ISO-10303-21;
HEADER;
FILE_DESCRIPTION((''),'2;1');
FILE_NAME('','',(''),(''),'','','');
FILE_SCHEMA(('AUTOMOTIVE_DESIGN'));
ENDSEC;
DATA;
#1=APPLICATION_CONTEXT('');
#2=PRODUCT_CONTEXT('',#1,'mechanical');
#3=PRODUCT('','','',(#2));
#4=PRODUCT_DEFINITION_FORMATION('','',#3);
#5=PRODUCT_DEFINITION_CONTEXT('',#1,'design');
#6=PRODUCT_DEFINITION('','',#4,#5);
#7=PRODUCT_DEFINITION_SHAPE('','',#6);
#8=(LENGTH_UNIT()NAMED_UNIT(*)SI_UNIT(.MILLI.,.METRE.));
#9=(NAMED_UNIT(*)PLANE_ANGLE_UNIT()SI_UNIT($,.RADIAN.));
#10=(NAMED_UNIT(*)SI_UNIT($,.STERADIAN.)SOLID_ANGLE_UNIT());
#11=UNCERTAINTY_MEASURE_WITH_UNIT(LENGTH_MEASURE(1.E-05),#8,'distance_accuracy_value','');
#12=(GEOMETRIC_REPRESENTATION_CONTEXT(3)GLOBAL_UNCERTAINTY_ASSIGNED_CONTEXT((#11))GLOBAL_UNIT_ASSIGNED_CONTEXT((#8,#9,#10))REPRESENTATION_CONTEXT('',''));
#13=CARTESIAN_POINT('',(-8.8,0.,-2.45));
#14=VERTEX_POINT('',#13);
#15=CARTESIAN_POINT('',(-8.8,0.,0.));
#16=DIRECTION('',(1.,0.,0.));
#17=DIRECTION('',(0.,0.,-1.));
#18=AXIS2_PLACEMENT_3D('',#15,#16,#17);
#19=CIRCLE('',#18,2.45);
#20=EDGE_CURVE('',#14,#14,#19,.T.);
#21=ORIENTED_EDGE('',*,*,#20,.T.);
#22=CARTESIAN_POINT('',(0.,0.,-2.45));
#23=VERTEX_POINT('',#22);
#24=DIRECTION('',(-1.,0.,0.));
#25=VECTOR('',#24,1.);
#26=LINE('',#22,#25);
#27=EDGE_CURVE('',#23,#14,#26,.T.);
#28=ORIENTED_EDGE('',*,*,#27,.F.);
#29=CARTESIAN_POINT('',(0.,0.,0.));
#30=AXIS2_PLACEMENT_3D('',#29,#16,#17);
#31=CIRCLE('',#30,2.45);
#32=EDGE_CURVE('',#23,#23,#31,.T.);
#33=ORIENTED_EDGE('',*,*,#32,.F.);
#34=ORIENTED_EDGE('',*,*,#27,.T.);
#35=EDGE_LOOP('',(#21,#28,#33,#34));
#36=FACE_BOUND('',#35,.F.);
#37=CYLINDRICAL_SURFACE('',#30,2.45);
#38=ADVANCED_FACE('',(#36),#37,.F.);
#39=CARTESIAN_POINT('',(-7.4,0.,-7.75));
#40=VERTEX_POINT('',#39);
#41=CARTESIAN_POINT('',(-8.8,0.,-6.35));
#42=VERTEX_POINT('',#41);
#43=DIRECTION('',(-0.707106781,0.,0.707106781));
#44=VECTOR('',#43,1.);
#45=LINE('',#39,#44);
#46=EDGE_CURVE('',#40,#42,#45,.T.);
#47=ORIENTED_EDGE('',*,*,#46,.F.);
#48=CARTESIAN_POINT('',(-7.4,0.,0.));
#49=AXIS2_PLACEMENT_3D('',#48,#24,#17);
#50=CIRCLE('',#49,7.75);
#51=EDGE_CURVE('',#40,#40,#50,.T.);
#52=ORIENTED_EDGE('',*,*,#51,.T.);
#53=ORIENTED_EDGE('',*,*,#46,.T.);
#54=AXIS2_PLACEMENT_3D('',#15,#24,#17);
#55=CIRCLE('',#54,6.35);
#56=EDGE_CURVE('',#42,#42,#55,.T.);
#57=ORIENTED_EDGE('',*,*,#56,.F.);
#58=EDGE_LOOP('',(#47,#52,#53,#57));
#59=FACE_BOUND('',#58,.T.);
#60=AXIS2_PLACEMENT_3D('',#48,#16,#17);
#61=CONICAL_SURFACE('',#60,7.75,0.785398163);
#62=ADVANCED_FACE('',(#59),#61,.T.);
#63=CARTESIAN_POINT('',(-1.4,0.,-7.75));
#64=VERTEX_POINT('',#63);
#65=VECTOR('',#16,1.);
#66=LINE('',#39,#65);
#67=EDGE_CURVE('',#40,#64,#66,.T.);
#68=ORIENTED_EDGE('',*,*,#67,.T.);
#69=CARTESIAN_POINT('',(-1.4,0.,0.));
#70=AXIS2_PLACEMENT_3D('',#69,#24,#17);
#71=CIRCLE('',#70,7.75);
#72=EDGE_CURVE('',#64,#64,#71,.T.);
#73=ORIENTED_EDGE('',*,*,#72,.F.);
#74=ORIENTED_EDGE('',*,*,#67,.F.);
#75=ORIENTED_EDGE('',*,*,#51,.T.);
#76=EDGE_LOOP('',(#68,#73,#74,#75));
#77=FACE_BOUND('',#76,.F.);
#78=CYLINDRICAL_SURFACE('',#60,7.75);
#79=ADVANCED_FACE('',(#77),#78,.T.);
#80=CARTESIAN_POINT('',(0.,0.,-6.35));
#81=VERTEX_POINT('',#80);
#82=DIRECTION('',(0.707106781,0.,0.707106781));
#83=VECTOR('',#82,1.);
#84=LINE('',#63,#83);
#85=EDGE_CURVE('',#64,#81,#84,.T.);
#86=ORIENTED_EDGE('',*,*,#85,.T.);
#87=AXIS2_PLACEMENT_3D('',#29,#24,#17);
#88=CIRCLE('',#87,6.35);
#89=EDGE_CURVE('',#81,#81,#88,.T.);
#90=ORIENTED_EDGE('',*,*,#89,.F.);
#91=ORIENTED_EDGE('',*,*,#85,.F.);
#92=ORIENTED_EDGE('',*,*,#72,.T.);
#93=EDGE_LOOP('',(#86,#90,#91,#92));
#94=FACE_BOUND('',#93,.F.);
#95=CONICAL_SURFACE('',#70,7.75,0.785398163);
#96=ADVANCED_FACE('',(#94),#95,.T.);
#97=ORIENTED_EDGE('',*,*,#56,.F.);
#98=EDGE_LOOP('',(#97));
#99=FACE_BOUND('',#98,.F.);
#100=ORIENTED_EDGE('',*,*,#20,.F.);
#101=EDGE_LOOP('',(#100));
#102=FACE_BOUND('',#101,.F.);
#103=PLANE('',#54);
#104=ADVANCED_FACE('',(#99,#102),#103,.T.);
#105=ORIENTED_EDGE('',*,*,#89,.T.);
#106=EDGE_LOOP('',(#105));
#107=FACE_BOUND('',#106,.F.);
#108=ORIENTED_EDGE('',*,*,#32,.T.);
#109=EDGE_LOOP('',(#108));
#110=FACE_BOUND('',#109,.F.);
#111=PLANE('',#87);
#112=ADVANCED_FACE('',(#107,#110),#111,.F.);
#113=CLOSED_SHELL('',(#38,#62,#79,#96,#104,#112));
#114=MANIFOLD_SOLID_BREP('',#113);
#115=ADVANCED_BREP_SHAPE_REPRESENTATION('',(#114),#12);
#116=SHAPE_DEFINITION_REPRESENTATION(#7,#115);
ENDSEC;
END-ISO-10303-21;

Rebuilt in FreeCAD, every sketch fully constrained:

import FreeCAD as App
import Part
import Sketcher

V = App.Vector


def add_polygon(sketch, points):
    """Adds a closed chain of lines whose ends are joined by coincident constraints."""
    first, n = sketch.GeometryCount, len(points)
    for a, b in zip(points, points[1:] + points[:1]):
        sketch.addGeometry(Part.LineSegment(App.Vector(*a, 0), App.Vector(*b, 0)), False)
    for i in range(n):
        sketch.addConstraint(Sketcher.Constraint("Coincident", first + i, 2, first + (i + 1) % n, 1))

doc = App.newDocument("Part")
body = doc.addObject("PartDesign::Body", "Body")

# Sketch on XZ plane
sketch1 = body.newObject("Sketcher::SketchObject", "Sketch")
sketch1.AttachmentSupport = (doc.getObject("XZ_Plane"), [""])
sketch1.MapMode = "FlatFace"
add_polygon(sketch1, [(-8.8, 0), (0, 0), (0, -6.3), (-1.4, -7.8), (-7.4, -7.8), (-8.8, -6.3)])  # lines 0-5
sketch1.addConstraint([
    Sketcher.Constraint("Horizontal", 0),
    Sketcher.Constraint("Vertical", 1),
    Sketcher.Constraint("Horizontal", 3),
    Sketcher.Constraint("Vertical", 5),
    Sketcher.Constraint("Coincident", 0, 2, -1, 1),
    Sketcher.Constraint("Perpendicular", 2, 4),
    Sketcher.Constraint("Horizontal", 1, 2, 4, 2),
    Sketcher.Constraint("Equal", 2, 4),
    Sketcher.Constraint("DistanceX", 3, 2, 3, 1, 6.0),
    Sketcher.Constraint("DistanceX", 0, 1, 0, 2, 8.8),
    Sketcher.Constraint("DistanceY", 2, 2, -1, 1, 7.75),
])
revolution = body.newObject("PartDesign::Revolution", "Revolution")
revolution.Profile = sketch1
revolution.ReferenceAxis = (sketch1, ["H_Axis"])
revolution.Angle = 360

# Sketch on YZ plane
sketch2 = body.newObject("Sketcher::SketchObject", "Sketch001")
sketch2.AttachmentSupport = (doc.getObject("YZ_Plane"), [""])
sketch2.MapMode = "FlatFace"
sketch2.addGeometry(Part.Circle(V(0, 0, 0), V(0, 0, 1), 2.5), False)
sketch2.addConstraint([
    Sketcher.Constraint("Coincident", 0, 3, -1, 1),
    Sketcher.Constraint("Diameter", 0, 4.9),
])
pocket1 = body.newObject("PartDesign::Pocket", "Pocket")
pocket1.Profile = sketch2
pocket1.Type = "ThroughAll"

doc.recompute()
